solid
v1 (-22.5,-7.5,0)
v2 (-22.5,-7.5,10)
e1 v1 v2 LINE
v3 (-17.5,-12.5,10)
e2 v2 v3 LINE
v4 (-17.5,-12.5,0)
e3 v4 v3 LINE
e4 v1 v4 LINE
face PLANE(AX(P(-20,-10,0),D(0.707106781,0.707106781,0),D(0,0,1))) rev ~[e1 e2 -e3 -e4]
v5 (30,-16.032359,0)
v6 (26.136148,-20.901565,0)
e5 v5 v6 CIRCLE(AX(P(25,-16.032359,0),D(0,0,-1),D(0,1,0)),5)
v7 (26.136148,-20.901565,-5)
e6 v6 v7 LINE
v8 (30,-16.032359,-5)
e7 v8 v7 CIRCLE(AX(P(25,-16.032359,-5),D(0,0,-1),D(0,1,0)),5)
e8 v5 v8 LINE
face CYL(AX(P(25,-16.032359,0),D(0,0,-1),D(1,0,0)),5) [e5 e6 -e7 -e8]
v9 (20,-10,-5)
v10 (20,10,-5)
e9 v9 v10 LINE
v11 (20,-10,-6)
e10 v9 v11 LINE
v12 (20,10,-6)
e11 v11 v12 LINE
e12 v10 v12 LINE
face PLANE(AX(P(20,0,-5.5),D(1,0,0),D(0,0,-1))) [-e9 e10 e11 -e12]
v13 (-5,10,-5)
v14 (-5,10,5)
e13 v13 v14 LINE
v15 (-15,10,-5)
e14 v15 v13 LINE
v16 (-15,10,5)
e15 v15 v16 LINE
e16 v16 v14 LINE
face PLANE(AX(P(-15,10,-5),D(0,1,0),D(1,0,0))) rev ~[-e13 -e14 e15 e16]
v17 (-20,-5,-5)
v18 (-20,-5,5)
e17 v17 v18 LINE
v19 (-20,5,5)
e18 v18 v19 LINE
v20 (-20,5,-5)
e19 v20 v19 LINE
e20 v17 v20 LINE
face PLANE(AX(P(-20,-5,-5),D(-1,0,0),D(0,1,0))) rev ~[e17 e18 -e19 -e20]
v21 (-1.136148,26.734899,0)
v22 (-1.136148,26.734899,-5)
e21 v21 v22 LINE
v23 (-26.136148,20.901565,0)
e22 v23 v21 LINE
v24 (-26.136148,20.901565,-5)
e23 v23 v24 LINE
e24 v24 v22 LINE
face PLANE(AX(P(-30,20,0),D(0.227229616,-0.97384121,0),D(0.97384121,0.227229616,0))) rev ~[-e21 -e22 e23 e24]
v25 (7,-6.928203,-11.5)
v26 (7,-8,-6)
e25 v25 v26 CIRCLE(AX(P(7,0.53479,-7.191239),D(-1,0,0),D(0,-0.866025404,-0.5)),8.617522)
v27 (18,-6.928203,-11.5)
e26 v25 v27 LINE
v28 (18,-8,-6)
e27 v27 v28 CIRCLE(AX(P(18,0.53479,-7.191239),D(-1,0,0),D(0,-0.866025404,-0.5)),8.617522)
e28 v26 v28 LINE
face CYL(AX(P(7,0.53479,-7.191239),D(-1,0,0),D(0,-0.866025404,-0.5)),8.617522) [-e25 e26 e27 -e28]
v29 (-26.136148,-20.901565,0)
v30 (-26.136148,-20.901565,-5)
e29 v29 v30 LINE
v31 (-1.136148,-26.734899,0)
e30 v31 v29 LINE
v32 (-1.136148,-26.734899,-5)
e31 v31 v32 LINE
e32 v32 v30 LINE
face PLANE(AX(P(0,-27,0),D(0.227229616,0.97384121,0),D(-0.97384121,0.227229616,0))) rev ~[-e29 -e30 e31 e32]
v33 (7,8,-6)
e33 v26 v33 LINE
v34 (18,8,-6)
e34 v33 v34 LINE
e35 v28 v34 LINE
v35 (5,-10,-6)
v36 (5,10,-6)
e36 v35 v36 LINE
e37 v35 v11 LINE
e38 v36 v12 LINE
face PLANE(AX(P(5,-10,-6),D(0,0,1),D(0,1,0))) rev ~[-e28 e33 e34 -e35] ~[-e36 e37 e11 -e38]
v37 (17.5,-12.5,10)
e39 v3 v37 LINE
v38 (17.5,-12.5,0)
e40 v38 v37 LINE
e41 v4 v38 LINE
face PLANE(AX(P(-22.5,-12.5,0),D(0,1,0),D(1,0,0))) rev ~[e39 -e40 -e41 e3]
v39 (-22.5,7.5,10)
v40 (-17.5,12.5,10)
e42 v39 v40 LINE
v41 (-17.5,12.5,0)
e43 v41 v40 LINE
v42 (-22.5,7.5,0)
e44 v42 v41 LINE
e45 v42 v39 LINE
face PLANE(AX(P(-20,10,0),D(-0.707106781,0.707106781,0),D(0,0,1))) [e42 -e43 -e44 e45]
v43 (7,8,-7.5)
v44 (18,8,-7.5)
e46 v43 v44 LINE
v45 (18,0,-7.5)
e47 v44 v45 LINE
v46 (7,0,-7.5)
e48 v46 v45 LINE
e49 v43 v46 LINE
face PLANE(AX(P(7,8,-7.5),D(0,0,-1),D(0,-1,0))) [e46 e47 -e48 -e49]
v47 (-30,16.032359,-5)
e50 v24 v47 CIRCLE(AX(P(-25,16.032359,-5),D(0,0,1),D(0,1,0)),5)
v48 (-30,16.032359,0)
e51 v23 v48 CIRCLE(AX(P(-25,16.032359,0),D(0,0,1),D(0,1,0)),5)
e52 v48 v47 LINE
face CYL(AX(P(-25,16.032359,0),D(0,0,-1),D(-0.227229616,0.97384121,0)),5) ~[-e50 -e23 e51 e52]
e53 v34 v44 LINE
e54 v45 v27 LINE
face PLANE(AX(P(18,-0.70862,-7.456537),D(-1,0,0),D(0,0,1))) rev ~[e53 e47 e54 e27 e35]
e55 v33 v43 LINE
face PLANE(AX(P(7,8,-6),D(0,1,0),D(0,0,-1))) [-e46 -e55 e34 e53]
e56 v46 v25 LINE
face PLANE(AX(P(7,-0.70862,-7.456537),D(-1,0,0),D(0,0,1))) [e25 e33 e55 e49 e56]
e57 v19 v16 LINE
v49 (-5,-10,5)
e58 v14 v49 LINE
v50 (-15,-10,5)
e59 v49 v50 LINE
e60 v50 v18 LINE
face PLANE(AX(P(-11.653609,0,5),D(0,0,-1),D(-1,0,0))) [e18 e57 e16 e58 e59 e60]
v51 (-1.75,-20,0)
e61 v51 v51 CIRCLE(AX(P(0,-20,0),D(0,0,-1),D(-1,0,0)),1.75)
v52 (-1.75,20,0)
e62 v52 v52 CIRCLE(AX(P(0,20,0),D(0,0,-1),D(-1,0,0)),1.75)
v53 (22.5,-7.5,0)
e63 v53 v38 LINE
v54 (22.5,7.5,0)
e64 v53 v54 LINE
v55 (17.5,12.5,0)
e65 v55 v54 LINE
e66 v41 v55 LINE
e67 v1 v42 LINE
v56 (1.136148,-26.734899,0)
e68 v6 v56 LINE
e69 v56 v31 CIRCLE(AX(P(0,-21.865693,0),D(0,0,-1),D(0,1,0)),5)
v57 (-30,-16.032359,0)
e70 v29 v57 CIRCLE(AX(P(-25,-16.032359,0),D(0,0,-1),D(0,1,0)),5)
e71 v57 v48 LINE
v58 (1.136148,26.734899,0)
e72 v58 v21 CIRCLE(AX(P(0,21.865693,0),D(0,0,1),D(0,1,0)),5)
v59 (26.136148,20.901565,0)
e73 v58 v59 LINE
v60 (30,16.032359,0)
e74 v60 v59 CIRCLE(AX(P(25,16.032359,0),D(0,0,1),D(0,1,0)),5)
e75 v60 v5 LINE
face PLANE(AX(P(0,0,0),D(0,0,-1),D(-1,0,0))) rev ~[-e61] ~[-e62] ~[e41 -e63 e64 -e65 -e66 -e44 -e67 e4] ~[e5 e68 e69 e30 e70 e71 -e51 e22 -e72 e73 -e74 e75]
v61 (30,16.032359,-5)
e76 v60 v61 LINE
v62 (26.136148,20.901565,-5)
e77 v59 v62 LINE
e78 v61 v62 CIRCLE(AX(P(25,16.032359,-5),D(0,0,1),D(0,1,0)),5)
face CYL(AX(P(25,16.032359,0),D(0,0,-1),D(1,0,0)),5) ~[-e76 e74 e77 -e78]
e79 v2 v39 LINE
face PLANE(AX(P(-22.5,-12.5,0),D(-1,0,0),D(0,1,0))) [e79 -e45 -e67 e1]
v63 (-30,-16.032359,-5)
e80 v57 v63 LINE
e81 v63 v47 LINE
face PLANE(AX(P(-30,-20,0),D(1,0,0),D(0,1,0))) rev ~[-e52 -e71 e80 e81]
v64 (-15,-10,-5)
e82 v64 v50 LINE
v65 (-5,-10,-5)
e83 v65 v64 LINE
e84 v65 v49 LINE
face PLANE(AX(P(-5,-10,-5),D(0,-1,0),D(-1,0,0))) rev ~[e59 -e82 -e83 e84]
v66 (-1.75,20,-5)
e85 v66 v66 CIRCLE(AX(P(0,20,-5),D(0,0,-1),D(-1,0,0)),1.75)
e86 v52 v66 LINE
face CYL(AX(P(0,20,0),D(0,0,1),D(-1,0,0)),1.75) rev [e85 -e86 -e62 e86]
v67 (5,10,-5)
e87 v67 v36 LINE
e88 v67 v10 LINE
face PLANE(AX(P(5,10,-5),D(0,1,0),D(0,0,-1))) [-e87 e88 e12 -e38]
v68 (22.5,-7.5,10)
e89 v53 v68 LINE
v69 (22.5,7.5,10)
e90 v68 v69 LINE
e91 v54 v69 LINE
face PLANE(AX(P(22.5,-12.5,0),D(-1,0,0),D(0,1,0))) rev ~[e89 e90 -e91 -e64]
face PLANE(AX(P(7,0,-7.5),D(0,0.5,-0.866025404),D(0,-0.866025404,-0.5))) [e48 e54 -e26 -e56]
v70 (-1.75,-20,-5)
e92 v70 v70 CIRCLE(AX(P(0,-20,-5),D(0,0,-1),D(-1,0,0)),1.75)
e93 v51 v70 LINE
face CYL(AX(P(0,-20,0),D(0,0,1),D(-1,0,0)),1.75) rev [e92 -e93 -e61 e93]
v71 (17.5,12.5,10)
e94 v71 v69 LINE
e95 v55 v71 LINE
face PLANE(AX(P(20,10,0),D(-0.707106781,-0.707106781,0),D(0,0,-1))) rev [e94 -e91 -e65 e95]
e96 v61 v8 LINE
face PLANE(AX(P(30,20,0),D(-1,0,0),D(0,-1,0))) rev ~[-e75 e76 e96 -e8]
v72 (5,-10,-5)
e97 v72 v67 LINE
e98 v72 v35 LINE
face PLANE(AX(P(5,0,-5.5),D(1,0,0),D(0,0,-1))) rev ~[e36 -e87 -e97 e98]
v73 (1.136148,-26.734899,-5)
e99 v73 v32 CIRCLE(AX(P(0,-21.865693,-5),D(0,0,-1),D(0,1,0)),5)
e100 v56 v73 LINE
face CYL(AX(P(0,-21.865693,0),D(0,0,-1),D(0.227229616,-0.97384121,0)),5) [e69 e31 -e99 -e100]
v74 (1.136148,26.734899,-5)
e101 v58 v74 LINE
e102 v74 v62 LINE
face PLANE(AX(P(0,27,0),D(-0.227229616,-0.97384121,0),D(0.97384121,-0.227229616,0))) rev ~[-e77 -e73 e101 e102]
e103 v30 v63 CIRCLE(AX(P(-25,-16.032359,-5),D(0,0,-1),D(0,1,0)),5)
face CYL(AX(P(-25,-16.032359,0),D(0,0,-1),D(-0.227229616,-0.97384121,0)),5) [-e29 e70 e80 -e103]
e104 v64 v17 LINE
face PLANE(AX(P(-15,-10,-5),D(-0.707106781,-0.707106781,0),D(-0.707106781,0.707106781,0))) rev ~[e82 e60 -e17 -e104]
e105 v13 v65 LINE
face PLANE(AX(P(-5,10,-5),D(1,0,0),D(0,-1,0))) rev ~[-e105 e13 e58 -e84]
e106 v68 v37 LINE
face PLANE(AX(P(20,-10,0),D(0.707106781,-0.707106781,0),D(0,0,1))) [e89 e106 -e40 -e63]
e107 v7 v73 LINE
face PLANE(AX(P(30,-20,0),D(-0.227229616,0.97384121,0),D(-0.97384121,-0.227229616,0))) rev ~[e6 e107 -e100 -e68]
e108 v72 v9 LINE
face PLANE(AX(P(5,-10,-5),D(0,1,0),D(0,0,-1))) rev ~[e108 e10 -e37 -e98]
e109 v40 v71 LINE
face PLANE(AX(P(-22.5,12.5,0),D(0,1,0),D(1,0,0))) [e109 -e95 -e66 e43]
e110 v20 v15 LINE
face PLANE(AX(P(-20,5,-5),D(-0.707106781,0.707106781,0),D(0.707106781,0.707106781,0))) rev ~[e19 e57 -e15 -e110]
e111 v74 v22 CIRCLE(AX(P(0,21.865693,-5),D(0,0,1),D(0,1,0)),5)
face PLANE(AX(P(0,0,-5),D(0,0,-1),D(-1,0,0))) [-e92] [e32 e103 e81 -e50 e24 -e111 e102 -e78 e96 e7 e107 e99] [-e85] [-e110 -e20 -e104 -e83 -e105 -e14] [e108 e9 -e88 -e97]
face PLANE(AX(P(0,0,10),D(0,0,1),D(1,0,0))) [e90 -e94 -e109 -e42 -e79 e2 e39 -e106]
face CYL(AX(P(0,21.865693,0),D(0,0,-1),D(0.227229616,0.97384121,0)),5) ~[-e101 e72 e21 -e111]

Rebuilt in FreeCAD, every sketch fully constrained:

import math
import FreeCAD as App
import Part
import Sketcher
from FreeCAD import Vector
Q = App.Units.Quantity


def edges_at(feature, points):
    """Names of the edges that pass closest to the given points."""
    edges = feature.Shape.Edges
    near = lambda p: min(range(len(edges)), key=lambda i: edges[i].distToShape(Part.Vertex(*p))[0])
    return sorted({f"Edge{near(p) + 1}" for p in points})


def add_polygon(sketch, points):
    """Adds a closed chain of lines whose ends are joined by coincident constraints."""
    first, n = sketch.GeometryCount, len(points)
    for a, b in zip(points, points[1:] + points[:1]):
        sketch.addGeometry(Part.LineSegment(App.Vector(*a, 0), App.Vector(*b, 0)), False)
    for i in range(n):
        sketch.addConstraint(Sketcher.Constraint("Coincident", first + i, 2, first + (i + 1) % n, 1))

doc = App.newDocument("Part")
body = doc.addObject("PartDesign::Body", "Body")

# Sketch on XY plane
sketch1 = body.newObject("Sketcher::SketchObject", "Sketch")
sketch1.AttachmentSupport = (doc.getObject("XY_Plane"), [""])
sketch1.MapMode = "FlatFace"
add_polygon(sketch1, [(-22.5, 12.5), (-22.5, -12.5), (22.5, -12.5), (22.5, 12.5)])  # lines 0-3
sketch1.addConstraint(Sketcher.Constraint("Vertical", 0))
sketch1.addConstraint(Sketcher.Constraint("Horizontal", 1))
sketch1.addConstraint(Sketcher.Constraint("Vertical", 2))
sketch1.addConstraint(Sketcher.Constraint("Horizontal", 3))
sketch1.addConstraint(Sketcher.Constraint("Symmetric", 0, 2, 2, 2, -1, 1))
sketch1.addConstraint(Sketcher.Constraint("DistanceX", 1, 1, 1, 2, 45.0))
sketch1.addConstraint(Sketcher.Constraint("DistanceY", 0, 2, 0, 1, 25.0))
pad1 = body.newObject("PartDesign::Pad", "Pad")
pad1.Profile = sketch1
pad1.Length = 10

# Sketch on XY plane
sketch2 = body.newObject("Sketcher::SketchObject", "Sketch001")
sketch2.AttachmentSupport = (doc.getObject("XY_Plane"), [""])
sketch2.MapMode = "FlatFace"
add_polygon(sketch2, [(30, 20), (30, -20), (0, -27), (-30, -20), (-30, 20), (0, 27)])  # lines 0-5
sketch2.addGeometry(Part.Circle(Vector(0, -20, 0), Vector(0, 0, 1), 1.75), False)  # 6
sketch2.addGeometry(Part.Circle(Vector(0, 20, 0), Vector(0, 0, 1), 1.75), False)  # 7
sketch2.addConstraint(Sketcher.Constraint("Vertical", 0))
sketch2.addConstraint(Sketcher.Constraint("Vertical", 3))
sketch2.addConstraint(Sketcher.Constraint("Equal", 6, 7))
sketch2.addConstraint(Sketcher.Constraint("Symmetric", 6, 3, 7, 3, -1, 1))
sketch2.addConstraint(Sketcher.Constraint("Symmetric", 0, 2, 3, 2, -1, 1))
sketch2.addConstraint(Sketcher.Constraint("Symmetric", 1, 2, 4, 2, -1, 1))
sketch2.addConstraint(Sketcher.Constraint("PointOnObject", 6, 3, -2))
sketch2.addConstraint(Sketcher.Constraint("PointOnObject", 1, 2, -2))
sketch2.addConstraint(Sketcher.Constraint("Parallel", 2, 5))
sketch2.addConstraint(Sketcher.Constraint("Horizontal", 6, 3, 0, 2))
sketch2.addConstraint(Sketcher.Constraint("Horizontal", 0, 2, 2, 2))
sketch2.addConstraint(Sketcher.Constraint("Diameter", 6, 3.5))
sketch2.addConstraint(Sketcher.Constraint("DistanceY", 0, 2, 0, 1, 40.0))
sketch2.addConstraint(Sketcher.Constraint("DistanceX", -1, 1, 0, 2, 30.0))
sketch2.addConstraint(Sketcher.Constraint("DistanceY", 1, 2, -1, 1, 27.0))
pad2 = body.newObject("PartDesign::Pad", "Pad001")
pad2.Profile = sketch2
pad2.Length = 5
pad2.Reversed = True
doc.recompute()

fillet = body.newObject("PartDesign::Fillet", "Fillet")
fillet.Base = (pad2, edges_at(pad2, [
    (0, -27, -2.5),
    (-30, -20, -2.5),
    (-30, 20, -2.5),
    (0, 27, -2.5),
    (30, 20, -2.5),
    (30, -20, -2.5),
]))
fillet.Radius = 5

# Sketch on XY plane
sketch3 = body.newObject("Sketcher::SketchObject", "Sketch002")
sketch3.AttachmentSupport = (doc.getObject("XY_Plane"), [""])
sketch3.MapMode = "FlatFace"
sketch3.AttachmentOffset = App.Placement(Vector(0, 0, -5), App.Rotation())
add_polygon(sketch3, [(-5, 10), (-5, -10), (-15, -10), (-20, -5), (-20, 5), (-15, 10)])  # lines 0-5
sketch3.addConstraint(Sketcher.Constraint("Vertical", 0))
sketch3.addConstraint(Sketcher.Constraint("Horizontal", 1))
sketch3.addConstraint(Sketcher.Constraint("Vertical", 3))
sketch3.addConstraint(Sketcher.Constraint("Horizontal", 5))
sketch3.addConstraint(Sketcher.Constraint("Symmetric", 1, 2, 4, 2, -1))
sketch3.addConstraint(Sketcher.Constraint("Perpendicular", 2, 4))
sketch3.addConstraint(Sketcher.Constraint("Equal", 5, 3))
sketch3.addConstraint(Sketcher.Constraint("Equal", 2, 4))
sketch3.addConstraint(Sketcher.Constraint("DistanceX", 1, 2, 1, 1, 10.0))
sketch3.addConstraint(Sketcher.Constraint("DistanceY", 0, 2, 0, 1, 20.0))
sketch3.addConstraint(Sketcher.Constraint("DistanceX", 0, 2, -1, 1, 5.0))
pocket1 = body.newObject("PartDesign::Pocket", "Pocket")
pocket1.Profile = sketch3
pocket1.Length = 10
pocket1.Reversed = True

# Sketch on YZ plane
sketch4 = body.newObject("Sketcher::SketchObject", "Sketch003")
sketch4.AttachmentSupport = (doc.getObject("YZ_Plane"), [""])
sketch4.MapMode = "FlatFace"
sketch4.AttachmentOffset = App.Placement(Vector(0, 0, 5), App.Rotation())
add_polygon(sketch4, [(10, -5), (-10, -5), (-10, -6), (10, -6)])  # lines 0-3
sketch4.addConstraint(Sketcher.Constraint("Horizontal", 0))
sketch4.addConstraint(Sketcher.Constraint("Vertical", 1))
sketch4.addConstraint(Sketcher.Constraint("Horizontal", 2))
sketch4.addConstraint(Sketcher.Constraint("Vertical", 3))
sketch4.addConstraint(Sketcher.Constraint("DistanceX", 0, 2, 0, 1, 20.0))
sketch4.addConstraint(Sketcher.Constraint("DistanceY", 1, 2, 1, 1, 1.0))
sketch4.addConstraint(Sketcher.Constraint("DistanceX", 0, 2, -1, 1, 10.0))
sketch4.addConstraint(Sketcher.Constraint("DistanceY", 0, 2, -1, 1, 5.0))
pad3 = body.newObject("PartDesign::Pad", "Pad002")
pad3.Profile = sketch4
pad3.Length = 15

# Sketch on YZ plane
sketch5 = body.newObject("Sketcher::SketchObject", "Sketch004")
sketch5.AttachmentSupport = (doc.getObject("YZ_Plane"), [""])
sketch5.MapMode = "FlatFace"
sketch5.AttachmentOffset = App.Placement(Vector(0, 0, 7), App.Rotation())
sketch5.addGeometry(Part.LineSegment(Vector(8, -7.5, 0), Vector(8, -6, 0)), False)
sketch5.addGeometry(Part.LineSegment(Vector(8, -6, 0), Vector(-8, -6, 0)), False)
sketch5.addGeometry(Part.ArcOfCircle(Part.Circle(Vector(0.53479, -7.191239, 0), Vector(0, 0, 1), 8.617522), math.radians(172.054303), math.radians(210)), False)
sketch5.addGeometry(Part.LineSegment(Vector(-6.928203, -11.5, 0), Vector(0, -7.5, 0)), False)
sketch5.addGeometry(Part.LineSegment(Vector(0, -7.5, 0), Vector(8, -7.5, 0)), False)
sketch5.addConstraint(Sketcher.Constraint("Coincident", 0, 2, 1, 1))
sketch5.addConstraint(Sketcher.Constraint("Coincident", 1, 2, 2, 1))
sketch5.addConstraint(Sketcher.Constraint("Coincident", 2, 2, 3, 1))
sketch5.addConstraint(Sketcher.Constraint("Coincident", 3, 2, 4, 1))
sketch5.addConstraint(Sketcher.Constraint("Coincident", 4, 2, 0, 1))
sketch5.addConstraint(Sketcher.Constraint("Vertical", 0))
sketch5.addConstraint(Sketcher.Constraint("Horizontal", 1))
sketch5.addConstraint(Sketcher.Constraint("Horizontal", 4))
sketch5.addConstraint(Sketcher.Constraint("PointOnObject", 3, 2, -2))
sketch5.addConstraint(Sketcher.Constraint("DistanceX", 1, 2, 1, 1, 16.0))
sketch5.addConstraint(Sketcher.Constraint("DistanceX", 4, 1, 4, 2, 8.0))
sketch5.addConstraint(Sketcher.Constraint("Angle", 3, Q("30 deg")))
sketch5.addConstraint(Sketcher.Constraint("Distance", 3, 8.0))
sketch5.addConstraint(Sketcher.Constraint("DistanceY", 0, 1, 0, 2, 1.5))
sketch5.addConstraint(Sketcher.Constraint("DistanceY", 0, 2, -1, 1, 6.0))
sketch5.addConstraint(Sketcher.Constraint("Radius", 2, 8.617522))
pad4 = body.newObject("PartDesign::Pad", "Pad003")
pad4.Profile = sketch5
pad4.Length = 11
doc.recompute()

chamfer = body.newObject("PartDesign::Chamfer", "Chamfer")
chamfer.Base = (pad4, edges_at(pad4, [
    (22.5, -12.5, 5),
    (-22.5, -12.5, 5),
    (-22.5, 12.5, 5),
    (22.5, 12.5, 5),
]))
chamfer.Size = 5

doc.recompute()
